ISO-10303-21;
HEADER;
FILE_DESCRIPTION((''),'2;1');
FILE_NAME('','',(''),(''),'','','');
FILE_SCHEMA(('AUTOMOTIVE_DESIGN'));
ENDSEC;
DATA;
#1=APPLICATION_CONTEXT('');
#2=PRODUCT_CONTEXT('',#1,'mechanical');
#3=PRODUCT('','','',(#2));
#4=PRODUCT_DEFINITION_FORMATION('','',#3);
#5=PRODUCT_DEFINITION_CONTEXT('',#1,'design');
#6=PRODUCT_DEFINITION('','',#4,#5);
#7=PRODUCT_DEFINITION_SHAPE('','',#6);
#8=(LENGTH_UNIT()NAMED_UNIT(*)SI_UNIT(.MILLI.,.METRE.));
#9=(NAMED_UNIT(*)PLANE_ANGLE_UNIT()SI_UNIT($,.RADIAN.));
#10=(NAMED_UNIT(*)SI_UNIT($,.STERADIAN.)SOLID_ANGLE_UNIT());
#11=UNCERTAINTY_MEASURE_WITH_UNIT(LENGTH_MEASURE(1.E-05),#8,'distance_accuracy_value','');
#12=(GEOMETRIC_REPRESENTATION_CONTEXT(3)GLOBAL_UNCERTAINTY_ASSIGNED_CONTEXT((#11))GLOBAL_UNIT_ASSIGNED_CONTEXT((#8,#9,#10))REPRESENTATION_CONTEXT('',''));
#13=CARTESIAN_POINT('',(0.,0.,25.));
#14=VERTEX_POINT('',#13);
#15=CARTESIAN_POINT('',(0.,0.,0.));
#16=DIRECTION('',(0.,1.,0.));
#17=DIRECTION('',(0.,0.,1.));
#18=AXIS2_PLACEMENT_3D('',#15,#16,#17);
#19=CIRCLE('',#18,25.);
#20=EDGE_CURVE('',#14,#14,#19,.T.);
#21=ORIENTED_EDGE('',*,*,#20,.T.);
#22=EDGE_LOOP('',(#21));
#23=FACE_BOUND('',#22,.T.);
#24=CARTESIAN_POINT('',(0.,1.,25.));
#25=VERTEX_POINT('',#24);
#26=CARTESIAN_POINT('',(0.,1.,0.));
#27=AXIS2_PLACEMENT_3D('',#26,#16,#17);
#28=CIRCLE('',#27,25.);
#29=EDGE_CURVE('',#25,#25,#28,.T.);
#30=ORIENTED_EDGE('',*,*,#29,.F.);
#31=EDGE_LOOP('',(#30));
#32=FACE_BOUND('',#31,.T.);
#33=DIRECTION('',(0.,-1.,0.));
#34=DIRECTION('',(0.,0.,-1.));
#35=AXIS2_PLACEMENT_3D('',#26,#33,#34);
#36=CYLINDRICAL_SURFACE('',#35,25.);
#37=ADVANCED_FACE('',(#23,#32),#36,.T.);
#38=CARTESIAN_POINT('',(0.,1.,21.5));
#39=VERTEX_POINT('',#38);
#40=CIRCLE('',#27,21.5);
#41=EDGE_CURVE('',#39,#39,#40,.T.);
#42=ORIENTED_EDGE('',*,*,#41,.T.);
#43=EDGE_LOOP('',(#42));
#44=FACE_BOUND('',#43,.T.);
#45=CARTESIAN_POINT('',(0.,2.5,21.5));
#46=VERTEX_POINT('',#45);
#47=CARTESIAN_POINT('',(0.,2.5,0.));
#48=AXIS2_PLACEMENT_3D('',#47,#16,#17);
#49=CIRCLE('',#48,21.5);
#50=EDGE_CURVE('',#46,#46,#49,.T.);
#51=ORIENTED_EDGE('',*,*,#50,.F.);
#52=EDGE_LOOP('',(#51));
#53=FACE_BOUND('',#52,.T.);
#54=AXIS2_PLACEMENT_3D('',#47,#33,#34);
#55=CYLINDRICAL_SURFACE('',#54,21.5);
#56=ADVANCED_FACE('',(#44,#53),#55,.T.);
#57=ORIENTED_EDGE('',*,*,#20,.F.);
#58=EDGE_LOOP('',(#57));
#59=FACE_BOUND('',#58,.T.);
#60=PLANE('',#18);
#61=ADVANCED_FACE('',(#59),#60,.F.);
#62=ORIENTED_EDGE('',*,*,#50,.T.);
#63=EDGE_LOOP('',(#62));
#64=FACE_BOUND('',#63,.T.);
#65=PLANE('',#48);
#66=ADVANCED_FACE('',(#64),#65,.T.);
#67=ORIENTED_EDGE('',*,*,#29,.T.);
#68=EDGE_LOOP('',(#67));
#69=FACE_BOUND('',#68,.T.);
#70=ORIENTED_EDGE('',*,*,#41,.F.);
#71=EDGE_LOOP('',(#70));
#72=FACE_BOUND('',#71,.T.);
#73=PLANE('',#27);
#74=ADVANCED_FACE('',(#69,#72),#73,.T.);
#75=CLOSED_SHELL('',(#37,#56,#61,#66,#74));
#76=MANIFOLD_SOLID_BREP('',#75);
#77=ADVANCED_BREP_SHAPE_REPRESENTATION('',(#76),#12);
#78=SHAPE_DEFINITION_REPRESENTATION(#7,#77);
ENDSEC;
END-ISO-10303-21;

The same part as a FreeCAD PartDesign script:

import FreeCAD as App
import Part
import Sketcher
Q = App.Units.Quantity

doc = App.newDocument("Part")
body = doc.addObject("PartDesign::Body", "Body")

# Sketch on XZ plane
sketch1 = body.newObject("Sketcher::SketchObject", "Sketch")
sketch1.AttachmentSupport = (doc.getObject("XZ_Plane"), [""])
sketch1.MapMode = "FlatFace"
sketch1.addGeometry(Part.Circle(App.Vector(0, 0, 0), App.Vector(0, 0, 1), 25), False)
sketch1.addConstraint([
    Sketcher.Constraint("Coincident", 0, 3, -1, 1),
    Sketcher.Constraint("Diameter", 0, Q("50 mm")),
])
pad1 = body.newObject("PartDesign::Pad", "Pad")
pad1.Profile = sketch1
pad1.Length = 1
pad1.Reversed = True

# Sketch on XZ plane
sketch2 = body.newObject("Sketcher::SketchObject", "Sketch001")
sketch2.AttachmentSupport = (doc.getObject("XZ_Plane"), [""])
sketch2.MapMode = "FlatFace"
sketch2.AttachmentOffset = App.Placement(App.Vector(0, 0, -1), App.Rotation())
sketch2.addGeometry(Part.Circle(App.Vector(0, 0, 0), App.Vector(0, 0, 1), 22), False)
sketch2.addConstraint([
    Sketcher.Constraint("Coincident", 0, 3, -1, 1),
    Sketcher.Constraint("Diameter", 0, Q("43 mm")),
])
pad2 = body.newObject("PartDesign::Pad", "Pad001")
pad2.Profile = sketch2
pad2.Length = 1.5
pad2.Reversed = True

doc.recompute()
